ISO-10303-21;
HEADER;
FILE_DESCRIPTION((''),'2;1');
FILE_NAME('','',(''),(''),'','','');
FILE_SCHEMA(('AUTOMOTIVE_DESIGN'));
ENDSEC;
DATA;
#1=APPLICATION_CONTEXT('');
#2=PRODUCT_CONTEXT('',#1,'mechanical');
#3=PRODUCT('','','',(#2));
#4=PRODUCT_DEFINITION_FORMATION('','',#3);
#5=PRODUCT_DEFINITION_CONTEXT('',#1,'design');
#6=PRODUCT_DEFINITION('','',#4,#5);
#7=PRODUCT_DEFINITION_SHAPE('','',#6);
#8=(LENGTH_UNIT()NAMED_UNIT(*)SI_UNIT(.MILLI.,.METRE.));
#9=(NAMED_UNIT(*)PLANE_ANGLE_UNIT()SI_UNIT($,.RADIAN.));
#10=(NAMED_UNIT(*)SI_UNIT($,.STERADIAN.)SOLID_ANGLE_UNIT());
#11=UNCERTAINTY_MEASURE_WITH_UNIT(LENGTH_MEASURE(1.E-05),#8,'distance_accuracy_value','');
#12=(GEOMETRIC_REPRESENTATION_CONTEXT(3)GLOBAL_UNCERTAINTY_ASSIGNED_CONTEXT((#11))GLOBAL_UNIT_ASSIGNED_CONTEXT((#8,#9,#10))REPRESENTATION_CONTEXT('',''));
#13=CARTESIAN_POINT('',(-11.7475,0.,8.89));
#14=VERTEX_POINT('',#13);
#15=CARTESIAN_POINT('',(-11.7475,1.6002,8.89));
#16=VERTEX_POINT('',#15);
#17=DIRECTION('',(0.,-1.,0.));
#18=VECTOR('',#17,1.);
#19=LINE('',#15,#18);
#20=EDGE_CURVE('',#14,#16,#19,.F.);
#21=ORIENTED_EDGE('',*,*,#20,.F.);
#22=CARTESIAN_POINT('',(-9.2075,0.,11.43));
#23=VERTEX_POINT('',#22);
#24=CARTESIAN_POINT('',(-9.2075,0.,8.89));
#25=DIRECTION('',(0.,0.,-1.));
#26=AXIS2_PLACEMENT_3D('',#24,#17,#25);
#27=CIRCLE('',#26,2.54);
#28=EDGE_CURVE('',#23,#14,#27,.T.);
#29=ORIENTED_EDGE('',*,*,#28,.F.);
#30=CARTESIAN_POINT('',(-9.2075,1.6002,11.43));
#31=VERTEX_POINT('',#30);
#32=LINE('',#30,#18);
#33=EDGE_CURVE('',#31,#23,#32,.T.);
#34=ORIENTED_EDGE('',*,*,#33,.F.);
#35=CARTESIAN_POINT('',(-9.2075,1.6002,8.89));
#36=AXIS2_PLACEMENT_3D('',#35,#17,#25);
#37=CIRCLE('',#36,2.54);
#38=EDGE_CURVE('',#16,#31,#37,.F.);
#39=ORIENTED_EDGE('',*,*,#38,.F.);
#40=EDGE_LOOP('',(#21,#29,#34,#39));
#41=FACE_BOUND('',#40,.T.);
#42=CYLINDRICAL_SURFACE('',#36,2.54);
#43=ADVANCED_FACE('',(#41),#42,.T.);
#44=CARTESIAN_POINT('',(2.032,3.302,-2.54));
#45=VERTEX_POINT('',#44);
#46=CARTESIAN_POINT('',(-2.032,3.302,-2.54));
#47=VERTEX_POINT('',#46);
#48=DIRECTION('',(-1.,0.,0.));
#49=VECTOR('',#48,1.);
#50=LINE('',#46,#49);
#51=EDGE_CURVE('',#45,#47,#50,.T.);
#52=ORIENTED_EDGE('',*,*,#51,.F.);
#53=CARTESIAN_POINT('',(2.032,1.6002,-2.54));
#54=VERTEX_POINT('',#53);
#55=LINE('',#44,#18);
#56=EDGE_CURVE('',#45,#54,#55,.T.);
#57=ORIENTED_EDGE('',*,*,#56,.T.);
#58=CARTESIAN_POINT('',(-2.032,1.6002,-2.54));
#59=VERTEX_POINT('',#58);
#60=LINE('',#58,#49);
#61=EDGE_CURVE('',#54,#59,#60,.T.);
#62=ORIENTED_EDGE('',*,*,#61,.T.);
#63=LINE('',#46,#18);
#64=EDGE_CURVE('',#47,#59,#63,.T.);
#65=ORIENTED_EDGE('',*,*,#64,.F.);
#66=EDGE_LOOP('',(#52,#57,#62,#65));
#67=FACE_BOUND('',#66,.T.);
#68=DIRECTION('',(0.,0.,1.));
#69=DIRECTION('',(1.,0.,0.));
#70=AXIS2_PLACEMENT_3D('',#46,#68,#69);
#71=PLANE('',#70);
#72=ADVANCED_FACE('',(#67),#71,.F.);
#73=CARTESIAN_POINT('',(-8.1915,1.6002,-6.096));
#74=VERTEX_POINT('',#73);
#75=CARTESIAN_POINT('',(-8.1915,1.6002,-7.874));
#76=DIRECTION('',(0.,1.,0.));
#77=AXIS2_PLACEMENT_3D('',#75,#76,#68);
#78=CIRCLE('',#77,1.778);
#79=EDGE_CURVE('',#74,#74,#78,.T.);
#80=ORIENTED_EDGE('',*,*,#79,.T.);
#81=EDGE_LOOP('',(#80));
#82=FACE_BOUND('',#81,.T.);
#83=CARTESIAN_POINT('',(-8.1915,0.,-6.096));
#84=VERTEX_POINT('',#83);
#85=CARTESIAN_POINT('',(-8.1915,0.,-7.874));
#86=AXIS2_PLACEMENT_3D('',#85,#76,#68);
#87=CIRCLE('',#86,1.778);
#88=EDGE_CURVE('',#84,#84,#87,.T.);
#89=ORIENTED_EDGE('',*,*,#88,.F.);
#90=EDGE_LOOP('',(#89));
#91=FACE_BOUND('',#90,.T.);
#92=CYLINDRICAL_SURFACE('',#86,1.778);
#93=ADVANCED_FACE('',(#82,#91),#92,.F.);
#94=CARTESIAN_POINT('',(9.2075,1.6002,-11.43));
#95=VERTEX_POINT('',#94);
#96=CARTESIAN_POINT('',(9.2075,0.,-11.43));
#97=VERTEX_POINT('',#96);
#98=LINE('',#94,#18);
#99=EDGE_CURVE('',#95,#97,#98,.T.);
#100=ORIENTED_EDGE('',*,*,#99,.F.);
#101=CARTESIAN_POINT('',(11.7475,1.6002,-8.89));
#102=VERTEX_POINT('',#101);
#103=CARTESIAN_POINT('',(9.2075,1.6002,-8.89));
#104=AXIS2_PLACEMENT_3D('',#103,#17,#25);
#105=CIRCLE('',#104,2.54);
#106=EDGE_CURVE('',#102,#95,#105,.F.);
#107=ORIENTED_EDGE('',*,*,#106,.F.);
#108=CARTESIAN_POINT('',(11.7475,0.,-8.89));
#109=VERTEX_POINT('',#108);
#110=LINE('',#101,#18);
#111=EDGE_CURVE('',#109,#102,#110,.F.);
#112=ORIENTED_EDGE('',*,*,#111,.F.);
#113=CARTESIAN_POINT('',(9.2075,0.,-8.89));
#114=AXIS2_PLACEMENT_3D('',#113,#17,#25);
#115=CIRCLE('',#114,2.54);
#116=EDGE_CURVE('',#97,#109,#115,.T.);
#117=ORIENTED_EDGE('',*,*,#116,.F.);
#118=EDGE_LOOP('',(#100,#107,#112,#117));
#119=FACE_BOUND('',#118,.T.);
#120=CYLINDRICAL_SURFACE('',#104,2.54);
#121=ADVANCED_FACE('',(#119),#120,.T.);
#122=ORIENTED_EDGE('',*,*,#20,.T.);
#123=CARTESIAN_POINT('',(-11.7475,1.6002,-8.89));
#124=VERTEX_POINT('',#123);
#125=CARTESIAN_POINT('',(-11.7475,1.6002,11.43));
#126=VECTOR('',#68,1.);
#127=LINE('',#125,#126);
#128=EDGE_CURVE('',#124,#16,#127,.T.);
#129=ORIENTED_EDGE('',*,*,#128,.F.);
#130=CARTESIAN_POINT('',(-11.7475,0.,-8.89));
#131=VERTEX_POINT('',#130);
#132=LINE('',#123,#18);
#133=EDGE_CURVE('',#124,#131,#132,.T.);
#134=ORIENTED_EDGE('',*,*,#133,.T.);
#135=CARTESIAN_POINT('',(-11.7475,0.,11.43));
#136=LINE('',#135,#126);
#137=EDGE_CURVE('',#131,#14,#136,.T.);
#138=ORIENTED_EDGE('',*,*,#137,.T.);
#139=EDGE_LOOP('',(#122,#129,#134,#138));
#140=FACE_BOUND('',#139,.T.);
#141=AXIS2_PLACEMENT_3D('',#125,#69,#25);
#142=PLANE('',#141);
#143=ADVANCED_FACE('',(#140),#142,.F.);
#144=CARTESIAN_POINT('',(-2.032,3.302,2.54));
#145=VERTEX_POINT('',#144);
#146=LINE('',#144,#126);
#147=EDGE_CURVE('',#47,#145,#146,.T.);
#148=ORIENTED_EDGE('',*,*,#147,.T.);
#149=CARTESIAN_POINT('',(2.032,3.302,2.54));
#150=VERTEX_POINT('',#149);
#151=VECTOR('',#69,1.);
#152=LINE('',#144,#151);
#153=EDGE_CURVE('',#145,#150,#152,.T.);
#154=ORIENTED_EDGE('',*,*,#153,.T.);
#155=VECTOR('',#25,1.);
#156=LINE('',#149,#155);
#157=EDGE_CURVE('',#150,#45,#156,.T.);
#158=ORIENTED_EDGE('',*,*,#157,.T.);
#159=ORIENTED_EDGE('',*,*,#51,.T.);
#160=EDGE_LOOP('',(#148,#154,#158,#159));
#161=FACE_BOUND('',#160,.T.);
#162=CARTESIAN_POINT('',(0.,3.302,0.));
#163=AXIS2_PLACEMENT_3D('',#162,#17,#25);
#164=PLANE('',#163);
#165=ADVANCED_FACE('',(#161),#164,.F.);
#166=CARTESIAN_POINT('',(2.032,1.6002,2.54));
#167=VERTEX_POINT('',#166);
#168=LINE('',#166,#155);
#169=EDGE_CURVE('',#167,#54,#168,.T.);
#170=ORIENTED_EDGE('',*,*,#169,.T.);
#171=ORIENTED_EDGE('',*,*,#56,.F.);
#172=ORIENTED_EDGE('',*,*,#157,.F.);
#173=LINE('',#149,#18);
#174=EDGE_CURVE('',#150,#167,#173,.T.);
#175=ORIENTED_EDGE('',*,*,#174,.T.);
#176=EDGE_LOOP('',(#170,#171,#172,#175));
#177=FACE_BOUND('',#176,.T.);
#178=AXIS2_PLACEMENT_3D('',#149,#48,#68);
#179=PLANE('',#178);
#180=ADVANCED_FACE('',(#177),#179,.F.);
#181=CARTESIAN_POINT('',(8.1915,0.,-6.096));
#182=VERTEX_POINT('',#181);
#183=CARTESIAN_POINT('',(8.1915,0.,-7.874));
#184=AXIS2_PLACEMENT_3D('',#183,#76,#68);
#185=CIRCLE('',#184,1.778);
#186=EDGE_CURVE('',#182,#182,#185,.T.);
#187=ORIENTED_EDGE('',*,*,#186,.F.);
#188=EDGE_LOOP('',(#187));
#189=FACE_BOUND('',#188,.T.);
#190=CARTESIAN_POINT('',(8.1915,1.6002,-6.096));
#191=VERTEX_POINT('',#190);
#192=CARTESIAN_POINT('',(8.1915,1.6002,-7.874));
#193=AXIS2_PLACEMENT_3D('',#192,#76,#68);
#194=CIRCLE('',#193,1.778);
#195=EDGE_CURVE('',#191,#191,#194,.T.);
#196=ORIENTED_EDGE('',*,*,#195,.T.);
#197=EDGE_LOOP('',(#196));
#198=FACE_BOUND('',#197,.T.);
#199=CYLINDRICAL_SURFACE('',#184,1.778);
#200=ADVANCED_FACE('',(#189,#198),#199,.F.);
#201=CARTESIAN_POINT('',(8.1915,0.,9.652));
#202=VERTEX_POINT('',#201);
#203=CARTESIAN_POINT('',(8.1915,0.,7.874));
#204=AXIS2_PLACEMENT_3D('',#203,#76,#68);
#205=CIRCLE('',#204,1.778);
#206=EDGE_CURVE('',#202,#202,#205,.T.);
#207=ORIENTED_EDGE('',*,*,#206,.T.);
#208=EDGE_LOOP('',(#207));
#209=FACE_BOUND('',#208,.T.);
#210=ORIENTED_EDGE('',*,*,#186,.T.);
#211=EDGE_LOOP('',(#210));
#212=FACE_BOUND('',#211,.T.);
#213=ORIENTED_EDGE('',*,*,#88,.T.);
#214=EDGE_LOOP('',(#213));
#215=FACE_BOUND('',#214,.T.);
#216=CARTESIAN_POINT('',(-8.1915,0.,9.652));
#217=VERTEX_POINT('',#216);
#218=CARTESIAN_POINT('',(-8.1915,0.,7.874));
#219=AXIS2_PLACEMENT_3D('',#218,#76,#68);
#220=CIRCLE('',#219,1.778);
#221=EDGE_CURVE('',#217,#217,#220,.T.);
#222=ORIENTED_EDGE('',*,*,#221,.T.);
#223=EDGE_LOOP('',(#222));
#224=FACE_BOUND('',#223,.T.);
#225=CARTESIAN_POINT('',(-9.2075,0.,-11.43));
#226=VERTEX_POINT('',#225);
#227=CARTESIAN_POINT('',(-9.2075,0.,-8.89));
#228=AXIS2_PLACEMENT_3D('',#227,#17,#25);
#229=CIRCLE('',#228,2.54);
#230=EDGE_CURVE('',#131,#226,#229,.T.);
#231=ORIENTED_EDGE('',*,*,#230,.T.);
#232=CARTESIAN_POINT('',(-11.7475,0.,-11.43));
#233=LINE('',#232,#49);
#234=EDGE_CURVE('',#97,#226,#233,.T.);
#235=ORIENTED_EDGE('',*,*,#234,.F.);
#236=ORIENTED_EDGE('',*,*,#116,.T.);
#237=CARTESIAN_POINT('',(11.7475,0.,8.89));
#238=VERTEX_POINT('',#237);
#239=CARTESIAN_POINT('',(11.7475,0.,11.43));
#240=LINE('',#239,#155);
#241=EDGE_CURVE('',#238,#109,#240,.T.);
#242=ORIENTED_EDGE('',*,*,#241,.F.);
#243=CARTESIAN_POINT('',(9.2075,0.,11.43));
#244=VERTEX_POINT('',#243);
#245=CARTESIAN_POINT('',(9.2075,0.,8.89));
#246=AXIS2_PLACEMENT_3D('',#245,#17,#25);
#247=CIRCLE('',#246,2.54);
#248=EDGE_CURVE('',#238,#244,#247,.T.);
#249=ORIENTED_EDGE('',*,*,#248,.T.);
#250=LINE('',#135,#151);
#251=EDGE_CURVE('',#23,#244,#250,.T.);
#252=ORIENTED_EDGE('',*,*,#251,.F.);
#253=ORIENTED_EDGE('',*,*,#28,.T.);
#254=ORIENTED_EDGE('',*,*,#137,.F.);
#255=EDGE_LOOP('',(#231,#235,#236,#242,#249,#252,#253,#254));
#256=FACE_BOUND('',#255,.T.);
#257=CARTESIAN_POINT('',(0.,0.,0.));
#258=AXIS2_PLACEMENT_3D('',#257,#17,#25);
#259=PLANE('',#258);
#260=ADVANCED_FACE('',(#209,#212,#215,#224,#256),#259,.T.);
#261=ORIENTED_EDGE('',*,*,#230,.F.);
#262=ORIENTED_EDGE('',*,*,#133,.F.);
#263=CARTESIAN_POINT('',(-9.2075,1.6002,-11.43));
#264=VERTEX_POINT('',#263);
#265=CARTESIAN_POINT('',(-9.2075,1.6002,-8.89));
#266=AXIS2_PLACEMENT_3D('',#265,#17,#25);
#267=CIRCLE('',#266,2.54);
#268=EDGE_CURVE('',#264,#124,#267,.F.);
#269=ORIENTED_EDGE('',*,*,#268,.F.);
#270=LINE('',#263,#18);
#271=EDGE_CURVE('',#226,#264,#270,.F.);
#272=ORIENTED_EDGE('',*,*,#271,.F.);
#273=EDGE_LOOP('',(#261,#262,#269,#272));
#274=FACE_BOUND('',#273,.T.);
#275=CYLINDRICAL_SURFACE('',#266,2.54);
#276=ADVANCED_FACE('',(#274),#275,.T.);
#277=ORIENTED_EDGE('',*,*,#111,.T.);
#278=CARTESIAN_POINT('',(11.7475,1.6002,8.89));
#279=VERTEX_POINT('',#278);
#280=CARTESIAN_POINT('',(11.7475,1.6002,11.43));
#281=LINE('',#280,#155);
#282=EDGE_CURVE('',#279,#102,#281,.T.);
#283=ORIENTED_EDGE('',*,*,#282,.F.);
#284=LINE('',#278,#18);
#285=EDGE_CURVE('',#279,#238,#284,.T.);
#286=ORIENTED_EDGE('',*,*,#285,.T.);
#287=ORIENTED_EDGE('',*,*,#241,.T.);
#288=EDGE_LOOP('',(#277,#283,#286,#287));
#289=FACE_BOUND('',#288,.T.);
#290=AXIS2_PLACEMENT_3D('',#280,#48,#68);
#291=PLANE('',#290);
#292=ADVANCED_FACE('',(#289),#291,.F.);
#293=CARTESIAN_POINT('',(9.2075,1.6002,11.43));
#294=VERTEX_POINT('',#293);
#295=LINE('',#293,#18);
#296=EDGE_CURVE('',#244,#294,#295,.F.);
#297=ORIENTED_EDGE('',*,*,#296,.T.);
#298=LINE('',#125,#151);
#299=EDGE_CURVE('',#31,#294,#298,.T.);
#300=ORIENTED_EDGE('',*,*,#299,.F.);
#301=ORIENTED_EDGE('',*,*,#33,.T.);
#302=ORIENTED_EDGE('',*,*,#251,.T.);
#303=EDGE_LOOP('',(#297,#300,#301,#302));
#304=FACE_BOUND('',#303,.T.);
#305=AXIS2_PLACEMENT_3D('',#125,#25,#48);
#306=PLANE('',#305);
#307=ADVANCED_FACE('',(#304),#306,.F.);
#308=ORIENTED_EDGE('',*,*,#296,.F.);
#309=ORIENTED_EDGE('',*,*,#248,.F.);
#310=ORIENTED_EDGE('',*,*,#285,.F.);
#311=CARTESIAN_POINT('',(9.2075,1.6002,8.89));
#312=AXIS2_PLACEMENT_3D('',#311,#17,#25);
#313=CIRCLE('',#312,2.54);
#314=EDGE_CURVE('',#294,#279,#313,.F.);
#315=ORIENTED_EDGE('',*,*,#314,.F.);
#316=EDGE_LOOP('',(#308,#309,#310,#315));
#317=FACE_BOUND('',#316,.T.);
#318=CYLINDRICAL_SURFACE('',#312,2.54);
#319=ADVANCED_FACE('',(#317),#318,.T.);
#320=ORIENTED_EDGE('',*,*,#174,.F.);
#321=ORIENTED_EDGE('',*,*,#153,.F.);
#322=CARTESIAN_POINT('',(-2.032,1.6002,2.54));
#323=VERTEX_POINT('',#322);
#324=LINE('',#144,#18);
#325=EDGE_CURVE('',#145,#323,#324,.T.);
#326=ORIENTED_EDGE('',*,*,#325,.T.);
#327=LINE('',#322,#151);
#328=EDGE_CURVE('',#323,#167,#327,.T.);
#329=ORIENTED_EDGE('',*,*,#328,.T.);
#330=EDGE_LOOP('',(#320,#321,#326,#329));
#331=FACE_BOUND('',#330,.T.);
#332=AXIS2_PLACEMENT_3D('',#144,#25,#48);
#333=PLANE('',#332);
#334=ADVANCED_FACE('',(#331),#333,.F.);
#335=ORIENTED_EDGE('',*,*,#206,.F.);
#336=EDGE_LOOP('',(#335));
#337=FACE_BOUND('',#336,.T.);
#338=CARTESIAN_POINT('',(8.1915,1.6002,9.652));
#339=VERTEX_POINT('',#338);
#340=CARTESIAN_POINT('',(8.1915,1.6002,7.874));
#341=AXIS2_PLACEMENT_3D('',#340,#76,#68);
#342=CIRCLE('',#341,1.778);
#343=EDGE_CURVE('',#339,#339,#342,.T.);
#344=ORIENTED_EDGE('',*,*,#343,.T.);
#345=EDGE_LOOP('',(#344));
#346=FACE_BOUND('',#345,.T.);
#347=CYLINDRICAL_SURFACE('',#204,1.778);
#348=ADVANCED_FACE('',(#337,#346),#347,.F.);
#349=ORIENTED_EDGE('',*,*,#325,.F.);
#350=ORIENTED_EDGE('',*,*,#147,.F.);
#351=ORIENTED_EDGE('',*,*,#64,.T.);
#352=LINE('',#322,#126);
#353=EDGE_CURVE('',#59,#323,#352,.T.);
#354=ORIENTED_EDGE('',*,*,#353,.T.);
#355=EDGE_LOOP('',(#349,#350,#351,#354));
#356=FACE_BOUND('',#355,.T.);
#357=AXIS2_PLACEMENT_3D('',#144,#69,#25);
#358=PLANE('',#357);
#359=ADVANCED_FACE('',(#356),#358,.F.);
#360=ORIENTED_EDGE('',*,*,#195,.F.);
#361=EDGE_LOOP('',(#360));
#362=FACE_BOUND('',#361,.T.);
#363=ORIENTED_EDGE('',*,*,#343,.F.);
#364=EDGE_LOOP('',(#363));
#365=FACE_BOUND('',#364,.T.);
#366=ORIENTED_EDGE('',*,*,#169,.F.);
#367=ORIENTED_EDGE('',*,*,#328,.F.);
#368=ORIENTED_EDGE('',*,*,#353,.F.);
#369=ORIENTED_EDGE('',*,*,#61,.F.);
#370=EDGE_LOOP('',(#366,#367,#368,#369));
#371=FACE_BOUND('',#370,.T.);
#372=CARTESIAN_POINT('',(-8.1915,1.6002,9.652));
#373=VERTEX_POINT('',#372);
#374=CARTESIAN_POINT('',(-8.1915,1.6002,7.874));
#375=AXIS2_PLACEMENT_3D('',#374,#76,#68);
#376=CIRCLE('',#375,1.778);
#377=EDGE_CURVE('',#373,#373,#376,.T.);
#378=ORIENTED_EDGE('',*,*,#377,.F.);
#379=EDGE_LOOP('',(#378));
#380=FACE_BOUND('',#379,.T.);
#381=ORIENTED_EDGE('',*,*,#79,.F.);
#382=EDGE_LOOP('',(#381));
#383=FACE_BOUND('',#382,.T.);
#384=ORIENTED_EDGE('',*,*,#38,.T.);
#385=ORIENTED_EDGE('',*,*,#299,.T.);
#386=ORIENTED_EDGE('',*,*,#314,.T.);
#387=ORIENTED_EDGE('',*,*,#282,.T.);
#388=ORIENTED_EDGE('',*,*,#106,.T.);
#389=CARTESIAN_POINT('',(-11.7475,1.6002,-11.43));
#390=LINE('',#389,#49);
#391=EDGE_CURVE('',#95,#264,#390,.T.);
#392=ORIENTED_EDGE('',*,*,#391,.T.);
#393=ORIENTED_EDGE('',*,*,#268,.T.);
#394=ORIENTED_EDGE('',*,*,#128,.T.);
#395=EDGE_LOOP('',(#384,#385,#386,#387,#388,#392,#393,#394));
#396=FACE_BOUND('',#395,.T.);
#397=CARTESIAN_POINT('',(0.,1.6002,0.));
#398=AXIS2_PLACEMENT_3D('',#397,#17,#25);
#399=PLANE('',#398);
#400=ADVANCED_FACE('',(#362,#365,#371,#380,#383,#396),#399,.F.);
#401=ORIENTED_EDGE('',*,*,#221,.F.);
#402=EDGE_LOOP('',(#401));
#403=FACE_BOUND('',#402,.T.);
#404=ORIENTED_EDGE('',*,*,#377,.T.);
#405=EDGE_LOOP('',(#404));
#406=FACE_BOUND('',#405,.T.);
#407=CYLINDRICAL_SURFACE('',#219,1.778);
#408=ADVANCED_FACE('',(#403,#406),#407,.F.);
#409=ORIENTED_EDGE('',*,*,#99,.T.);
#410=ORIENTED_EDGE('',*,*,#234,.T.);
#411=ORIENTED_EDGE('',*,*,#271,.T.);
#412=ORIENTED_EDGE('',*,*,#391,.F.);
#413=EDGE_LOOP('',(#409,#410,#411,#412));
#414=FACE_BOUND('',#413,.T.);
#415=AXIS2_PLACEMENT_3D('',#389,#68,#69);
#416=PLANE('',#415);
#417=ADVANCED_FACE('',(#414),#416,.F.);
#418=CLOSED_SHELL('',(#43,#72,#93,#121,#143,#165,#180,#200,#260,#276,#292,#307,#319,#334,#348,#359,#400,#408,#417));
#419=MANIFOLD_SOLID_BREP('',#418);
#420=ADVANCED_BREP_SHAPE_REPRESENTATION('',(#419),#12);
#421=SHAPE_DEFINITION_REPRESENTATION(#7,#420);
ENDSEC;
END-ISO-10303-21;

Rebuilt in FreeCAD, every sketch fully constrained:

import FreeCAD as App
import Part
import Sketcher

V = App.Vector
Q = App.Units.Quantity


def edges_at(feature, points):
    """Names of the edges that pass closest to the given points."""
    edges = feature.Shape.Edges
    near = lambda p: min(range(len(edges)), key=lambda i: edges[i].distToShape(Part.Vertex(*p))[0])
    return sorted({f"Edge{near(p) + 1}" for p in points})

doc = App.newDocument("Part")
body = doc.addObject("PartDesign::Body", "Body")

sketch1 = doc.addObject("Sketcher::SketchObject", "Sketch")
body.addObject(sketch1)
sketch1.AttachmentSupport = (doc.XZ_Plane, [""])
sketch1.MapMode = "FlatFace"
sketch1.addGeometry(Part.LineSegment(V(-11.7475, -11.43, 0), V(-11.7475, 11.43, 0)), False)
sketch1.addGeometry(Part.LineSegment(V(-11.7475, 11.43, 0), V(11.7475, 11.43, 0)), False)
sketch1.addGeometry(Part.LineSegment(V(11.7475, 11.43, 0), V(11.7475, -11.43, 0)), False)
sketch1.addGeometry(Part.LineSegment(V(11.7475, -11.43, 0), V(-11.7475, -11.43, 0)), False)
sketch1.addConstraint(Sketcher.Constraint("Coincident", 0, 2, 1, 1))
sketch1.addConstraint(Sketcher.Constraint("Coincident", 1, 2, 2, 1))
sketch1.addConstraint(Sketcher.Constraint("Coincident", 2, 2, 3, 1))
sketch1.addConstraint(Sketcher.Constraint("Coincident", 3, 2, 0, 1))
sketch1.addConstraint(Sketcher.Constraint("Vertical", 0))
sketch1.addConstraint(Sketcher.Constraint("Horizontal", 1))
sketch1.addConstraint(Sketcher.Constraint("Vertical", 2))
sketch1.addConstraint(Sketcher.Constraint("Horizontal", 3))
sketch1.addConstraint(Sketcher.Constraint("Symmetric", 0, 2, 2, 2, -1, 1))
sketch1.addConstraint(Sketcher.Constraint("DistanceY", 0, 1, 0, 2, Q("0.9 in")))
sketch1.addConstraint(Sketcher.Constraint("DistanceX", 1, 1, 1, 2, Q("0.925 in")))
pad1 = doc.addObject("PartDesign::Pad", "Pad")
body.addObject(pad1)
pad1.Profile = sketch1
pad1.Length = Q("0.063 in")
pad1.Reversed = True

sketch2 = doc.addObject("Sketcher::SketchObject", "Sketch001")
body.addObject(sketch2)
sketch2.AttachmentSupport = (doc.XZ_Plane, [""])
sketch2.MapMode = "FlatFace"
sketch2.AttachmentOffset = App.Placement(V(0, 0, -0.063 * 25.4), App.Rotation())
sketch2.addGeometry(Part.LineSegment(V(-2.032, -2.54, 0), V(-2.032, 2.54, 0)), False)
sketch2.addGeometry(Part.LineSegment(V(-2.032, 2.54, 0), V(2.032, 2.54, 0)), False)
sketch2.addGeometry(Part.LineSegment(V(2.032, 2.54, 0), V(2.032, -2.54, 0)), False)
sketch2.addGeometry(Part.LineSegment(V(2.032, -2.54, 0), V(-2.032, -2.54, 0)), False)
sketch2.addConstraint(Sketcher.Constraint("Coincident", 0, 2, 1, 1))
sketch2.addConstraint(Sketcher.Constraint("Coincident", 1, 2, 2, 1))
sketch2.addConstraint(Sketcher.Constraint("Coincident", 2, 2, 3, 1))
sketch2.addConstraint(Sketcher.Constraint("Coincident", 3, 2, 0, 1))
sketch2.addConstraint(Sketcher.Constraint("Vertical", 0))
sketch2.addConstraint(Sketcher.Constraint("Horizontal", 1))
sketch2.addConstraint(Sketcher.Constraint("Vertical", 2))
sketch2.addConstraint(Sketcher.Constraint("Horizontal", 3))
sketch2.addConstraint(Sketcher.Constraint("Symmetric", 0, 2, 2, 2, -1, 1))
sketch2.addConstraint(Sketcher.Constraint("DistanceY", 0, 1, 0, 2, Q("0.2 in")))
sketch2.addConstraint(Sketcher.Constraint("DistanceX", 1, 1, 1, 2, Q("0.16 in")))
pad2 = doc.addObject("PartDesign::Pad", "Pad001")
body.addObject(pad2)
pad2.Profile = sketch2
pad2.Length = Q("0.067 in")
pad2.Reversed = True
doc.recompute()

fillet = doc.addObject("PartDesign::Fillet", "Fillet")
body.addObject(fillet)
fillet.Base = (pad2, edges_at(pad2, [
    (11.748, 0.8, 11.43),
    (-11.748, 0.8, 11.43),
    (-11.748, 0.8, -11.43),
    (11.748, 0.8, -11.43),
]))
fillet.Radius = Q("0.1 in")

sketch3 = doc.addObject("Sketcher::SketchObject", "Sketch002")
body.addObject(sketch3)
sketch3.AttachmentSupport = (doc.XZ_Plane, [""])
sketch3.MapMode = "FlatFace"
sketch3.AttachmentOffset = App.Placement(V(0, 0, -0.063 * 25.4), App.Rotation())
sketch3.addGeometry(Part.Circle(V(-8.1915, 7.874, 0), V(0, 0, 1), 1.778), False)
sketch3.addGeometry(Part.Circle(V(-8.1915, -7.874, 0), V(0, 0, 1), 1.778), False)
sketch3.addGeometry(Part.Circle(V(8.1915, -7.874, 0), V(0, 0, 1), 1.778), False)
sketch3.addGeometry(Part.Circle(V(8.1915, 7.874, 0), V(0, 0, 1), 1.778), False)
sketch3.addConstraint(Sketcher.Constraint("Equal", 0, 1))
sketch3.addConstraint(Sketcher.Constraint("Equal", 1, 2))
sketch3.addConstraint(Sketcher.Constraint("Equal", 2, 3))
sketch3.addConstraint(Sketcher.Constraint("Symmetric", 0, 3, 2, 3, -1, 1))
sketch3.addConstraint(Sketcher.Constraint("Symmetric", 1, 3, 3, 3, -1, 1))
sketch3.addConstraint(Sketcher.Constraint("Symmetric", 1, 3, 2, 3, -2))
sketch3.addConstraint(Sketcher.Constraint("Diameter", 0, Q("0.14 in")))
sketch3.addConstraint(Sketcher.Constraint("DistanceY", -1, 1, 0, 3, Q("0.31 in")))
sketch3.addConstraint(Sketcher.Constraint("DistanceX", 1, 3, 2, 3, Q("0.645 in")))
pocket1 = doc.addObject("PartDesign::Pocket", "Pocket")
body.addObject(pocket1)
pocket1.Profile = sketch3
pocket1.Type = "ThroughAll"
pocket1.Reversed = True

doc.recompute()
